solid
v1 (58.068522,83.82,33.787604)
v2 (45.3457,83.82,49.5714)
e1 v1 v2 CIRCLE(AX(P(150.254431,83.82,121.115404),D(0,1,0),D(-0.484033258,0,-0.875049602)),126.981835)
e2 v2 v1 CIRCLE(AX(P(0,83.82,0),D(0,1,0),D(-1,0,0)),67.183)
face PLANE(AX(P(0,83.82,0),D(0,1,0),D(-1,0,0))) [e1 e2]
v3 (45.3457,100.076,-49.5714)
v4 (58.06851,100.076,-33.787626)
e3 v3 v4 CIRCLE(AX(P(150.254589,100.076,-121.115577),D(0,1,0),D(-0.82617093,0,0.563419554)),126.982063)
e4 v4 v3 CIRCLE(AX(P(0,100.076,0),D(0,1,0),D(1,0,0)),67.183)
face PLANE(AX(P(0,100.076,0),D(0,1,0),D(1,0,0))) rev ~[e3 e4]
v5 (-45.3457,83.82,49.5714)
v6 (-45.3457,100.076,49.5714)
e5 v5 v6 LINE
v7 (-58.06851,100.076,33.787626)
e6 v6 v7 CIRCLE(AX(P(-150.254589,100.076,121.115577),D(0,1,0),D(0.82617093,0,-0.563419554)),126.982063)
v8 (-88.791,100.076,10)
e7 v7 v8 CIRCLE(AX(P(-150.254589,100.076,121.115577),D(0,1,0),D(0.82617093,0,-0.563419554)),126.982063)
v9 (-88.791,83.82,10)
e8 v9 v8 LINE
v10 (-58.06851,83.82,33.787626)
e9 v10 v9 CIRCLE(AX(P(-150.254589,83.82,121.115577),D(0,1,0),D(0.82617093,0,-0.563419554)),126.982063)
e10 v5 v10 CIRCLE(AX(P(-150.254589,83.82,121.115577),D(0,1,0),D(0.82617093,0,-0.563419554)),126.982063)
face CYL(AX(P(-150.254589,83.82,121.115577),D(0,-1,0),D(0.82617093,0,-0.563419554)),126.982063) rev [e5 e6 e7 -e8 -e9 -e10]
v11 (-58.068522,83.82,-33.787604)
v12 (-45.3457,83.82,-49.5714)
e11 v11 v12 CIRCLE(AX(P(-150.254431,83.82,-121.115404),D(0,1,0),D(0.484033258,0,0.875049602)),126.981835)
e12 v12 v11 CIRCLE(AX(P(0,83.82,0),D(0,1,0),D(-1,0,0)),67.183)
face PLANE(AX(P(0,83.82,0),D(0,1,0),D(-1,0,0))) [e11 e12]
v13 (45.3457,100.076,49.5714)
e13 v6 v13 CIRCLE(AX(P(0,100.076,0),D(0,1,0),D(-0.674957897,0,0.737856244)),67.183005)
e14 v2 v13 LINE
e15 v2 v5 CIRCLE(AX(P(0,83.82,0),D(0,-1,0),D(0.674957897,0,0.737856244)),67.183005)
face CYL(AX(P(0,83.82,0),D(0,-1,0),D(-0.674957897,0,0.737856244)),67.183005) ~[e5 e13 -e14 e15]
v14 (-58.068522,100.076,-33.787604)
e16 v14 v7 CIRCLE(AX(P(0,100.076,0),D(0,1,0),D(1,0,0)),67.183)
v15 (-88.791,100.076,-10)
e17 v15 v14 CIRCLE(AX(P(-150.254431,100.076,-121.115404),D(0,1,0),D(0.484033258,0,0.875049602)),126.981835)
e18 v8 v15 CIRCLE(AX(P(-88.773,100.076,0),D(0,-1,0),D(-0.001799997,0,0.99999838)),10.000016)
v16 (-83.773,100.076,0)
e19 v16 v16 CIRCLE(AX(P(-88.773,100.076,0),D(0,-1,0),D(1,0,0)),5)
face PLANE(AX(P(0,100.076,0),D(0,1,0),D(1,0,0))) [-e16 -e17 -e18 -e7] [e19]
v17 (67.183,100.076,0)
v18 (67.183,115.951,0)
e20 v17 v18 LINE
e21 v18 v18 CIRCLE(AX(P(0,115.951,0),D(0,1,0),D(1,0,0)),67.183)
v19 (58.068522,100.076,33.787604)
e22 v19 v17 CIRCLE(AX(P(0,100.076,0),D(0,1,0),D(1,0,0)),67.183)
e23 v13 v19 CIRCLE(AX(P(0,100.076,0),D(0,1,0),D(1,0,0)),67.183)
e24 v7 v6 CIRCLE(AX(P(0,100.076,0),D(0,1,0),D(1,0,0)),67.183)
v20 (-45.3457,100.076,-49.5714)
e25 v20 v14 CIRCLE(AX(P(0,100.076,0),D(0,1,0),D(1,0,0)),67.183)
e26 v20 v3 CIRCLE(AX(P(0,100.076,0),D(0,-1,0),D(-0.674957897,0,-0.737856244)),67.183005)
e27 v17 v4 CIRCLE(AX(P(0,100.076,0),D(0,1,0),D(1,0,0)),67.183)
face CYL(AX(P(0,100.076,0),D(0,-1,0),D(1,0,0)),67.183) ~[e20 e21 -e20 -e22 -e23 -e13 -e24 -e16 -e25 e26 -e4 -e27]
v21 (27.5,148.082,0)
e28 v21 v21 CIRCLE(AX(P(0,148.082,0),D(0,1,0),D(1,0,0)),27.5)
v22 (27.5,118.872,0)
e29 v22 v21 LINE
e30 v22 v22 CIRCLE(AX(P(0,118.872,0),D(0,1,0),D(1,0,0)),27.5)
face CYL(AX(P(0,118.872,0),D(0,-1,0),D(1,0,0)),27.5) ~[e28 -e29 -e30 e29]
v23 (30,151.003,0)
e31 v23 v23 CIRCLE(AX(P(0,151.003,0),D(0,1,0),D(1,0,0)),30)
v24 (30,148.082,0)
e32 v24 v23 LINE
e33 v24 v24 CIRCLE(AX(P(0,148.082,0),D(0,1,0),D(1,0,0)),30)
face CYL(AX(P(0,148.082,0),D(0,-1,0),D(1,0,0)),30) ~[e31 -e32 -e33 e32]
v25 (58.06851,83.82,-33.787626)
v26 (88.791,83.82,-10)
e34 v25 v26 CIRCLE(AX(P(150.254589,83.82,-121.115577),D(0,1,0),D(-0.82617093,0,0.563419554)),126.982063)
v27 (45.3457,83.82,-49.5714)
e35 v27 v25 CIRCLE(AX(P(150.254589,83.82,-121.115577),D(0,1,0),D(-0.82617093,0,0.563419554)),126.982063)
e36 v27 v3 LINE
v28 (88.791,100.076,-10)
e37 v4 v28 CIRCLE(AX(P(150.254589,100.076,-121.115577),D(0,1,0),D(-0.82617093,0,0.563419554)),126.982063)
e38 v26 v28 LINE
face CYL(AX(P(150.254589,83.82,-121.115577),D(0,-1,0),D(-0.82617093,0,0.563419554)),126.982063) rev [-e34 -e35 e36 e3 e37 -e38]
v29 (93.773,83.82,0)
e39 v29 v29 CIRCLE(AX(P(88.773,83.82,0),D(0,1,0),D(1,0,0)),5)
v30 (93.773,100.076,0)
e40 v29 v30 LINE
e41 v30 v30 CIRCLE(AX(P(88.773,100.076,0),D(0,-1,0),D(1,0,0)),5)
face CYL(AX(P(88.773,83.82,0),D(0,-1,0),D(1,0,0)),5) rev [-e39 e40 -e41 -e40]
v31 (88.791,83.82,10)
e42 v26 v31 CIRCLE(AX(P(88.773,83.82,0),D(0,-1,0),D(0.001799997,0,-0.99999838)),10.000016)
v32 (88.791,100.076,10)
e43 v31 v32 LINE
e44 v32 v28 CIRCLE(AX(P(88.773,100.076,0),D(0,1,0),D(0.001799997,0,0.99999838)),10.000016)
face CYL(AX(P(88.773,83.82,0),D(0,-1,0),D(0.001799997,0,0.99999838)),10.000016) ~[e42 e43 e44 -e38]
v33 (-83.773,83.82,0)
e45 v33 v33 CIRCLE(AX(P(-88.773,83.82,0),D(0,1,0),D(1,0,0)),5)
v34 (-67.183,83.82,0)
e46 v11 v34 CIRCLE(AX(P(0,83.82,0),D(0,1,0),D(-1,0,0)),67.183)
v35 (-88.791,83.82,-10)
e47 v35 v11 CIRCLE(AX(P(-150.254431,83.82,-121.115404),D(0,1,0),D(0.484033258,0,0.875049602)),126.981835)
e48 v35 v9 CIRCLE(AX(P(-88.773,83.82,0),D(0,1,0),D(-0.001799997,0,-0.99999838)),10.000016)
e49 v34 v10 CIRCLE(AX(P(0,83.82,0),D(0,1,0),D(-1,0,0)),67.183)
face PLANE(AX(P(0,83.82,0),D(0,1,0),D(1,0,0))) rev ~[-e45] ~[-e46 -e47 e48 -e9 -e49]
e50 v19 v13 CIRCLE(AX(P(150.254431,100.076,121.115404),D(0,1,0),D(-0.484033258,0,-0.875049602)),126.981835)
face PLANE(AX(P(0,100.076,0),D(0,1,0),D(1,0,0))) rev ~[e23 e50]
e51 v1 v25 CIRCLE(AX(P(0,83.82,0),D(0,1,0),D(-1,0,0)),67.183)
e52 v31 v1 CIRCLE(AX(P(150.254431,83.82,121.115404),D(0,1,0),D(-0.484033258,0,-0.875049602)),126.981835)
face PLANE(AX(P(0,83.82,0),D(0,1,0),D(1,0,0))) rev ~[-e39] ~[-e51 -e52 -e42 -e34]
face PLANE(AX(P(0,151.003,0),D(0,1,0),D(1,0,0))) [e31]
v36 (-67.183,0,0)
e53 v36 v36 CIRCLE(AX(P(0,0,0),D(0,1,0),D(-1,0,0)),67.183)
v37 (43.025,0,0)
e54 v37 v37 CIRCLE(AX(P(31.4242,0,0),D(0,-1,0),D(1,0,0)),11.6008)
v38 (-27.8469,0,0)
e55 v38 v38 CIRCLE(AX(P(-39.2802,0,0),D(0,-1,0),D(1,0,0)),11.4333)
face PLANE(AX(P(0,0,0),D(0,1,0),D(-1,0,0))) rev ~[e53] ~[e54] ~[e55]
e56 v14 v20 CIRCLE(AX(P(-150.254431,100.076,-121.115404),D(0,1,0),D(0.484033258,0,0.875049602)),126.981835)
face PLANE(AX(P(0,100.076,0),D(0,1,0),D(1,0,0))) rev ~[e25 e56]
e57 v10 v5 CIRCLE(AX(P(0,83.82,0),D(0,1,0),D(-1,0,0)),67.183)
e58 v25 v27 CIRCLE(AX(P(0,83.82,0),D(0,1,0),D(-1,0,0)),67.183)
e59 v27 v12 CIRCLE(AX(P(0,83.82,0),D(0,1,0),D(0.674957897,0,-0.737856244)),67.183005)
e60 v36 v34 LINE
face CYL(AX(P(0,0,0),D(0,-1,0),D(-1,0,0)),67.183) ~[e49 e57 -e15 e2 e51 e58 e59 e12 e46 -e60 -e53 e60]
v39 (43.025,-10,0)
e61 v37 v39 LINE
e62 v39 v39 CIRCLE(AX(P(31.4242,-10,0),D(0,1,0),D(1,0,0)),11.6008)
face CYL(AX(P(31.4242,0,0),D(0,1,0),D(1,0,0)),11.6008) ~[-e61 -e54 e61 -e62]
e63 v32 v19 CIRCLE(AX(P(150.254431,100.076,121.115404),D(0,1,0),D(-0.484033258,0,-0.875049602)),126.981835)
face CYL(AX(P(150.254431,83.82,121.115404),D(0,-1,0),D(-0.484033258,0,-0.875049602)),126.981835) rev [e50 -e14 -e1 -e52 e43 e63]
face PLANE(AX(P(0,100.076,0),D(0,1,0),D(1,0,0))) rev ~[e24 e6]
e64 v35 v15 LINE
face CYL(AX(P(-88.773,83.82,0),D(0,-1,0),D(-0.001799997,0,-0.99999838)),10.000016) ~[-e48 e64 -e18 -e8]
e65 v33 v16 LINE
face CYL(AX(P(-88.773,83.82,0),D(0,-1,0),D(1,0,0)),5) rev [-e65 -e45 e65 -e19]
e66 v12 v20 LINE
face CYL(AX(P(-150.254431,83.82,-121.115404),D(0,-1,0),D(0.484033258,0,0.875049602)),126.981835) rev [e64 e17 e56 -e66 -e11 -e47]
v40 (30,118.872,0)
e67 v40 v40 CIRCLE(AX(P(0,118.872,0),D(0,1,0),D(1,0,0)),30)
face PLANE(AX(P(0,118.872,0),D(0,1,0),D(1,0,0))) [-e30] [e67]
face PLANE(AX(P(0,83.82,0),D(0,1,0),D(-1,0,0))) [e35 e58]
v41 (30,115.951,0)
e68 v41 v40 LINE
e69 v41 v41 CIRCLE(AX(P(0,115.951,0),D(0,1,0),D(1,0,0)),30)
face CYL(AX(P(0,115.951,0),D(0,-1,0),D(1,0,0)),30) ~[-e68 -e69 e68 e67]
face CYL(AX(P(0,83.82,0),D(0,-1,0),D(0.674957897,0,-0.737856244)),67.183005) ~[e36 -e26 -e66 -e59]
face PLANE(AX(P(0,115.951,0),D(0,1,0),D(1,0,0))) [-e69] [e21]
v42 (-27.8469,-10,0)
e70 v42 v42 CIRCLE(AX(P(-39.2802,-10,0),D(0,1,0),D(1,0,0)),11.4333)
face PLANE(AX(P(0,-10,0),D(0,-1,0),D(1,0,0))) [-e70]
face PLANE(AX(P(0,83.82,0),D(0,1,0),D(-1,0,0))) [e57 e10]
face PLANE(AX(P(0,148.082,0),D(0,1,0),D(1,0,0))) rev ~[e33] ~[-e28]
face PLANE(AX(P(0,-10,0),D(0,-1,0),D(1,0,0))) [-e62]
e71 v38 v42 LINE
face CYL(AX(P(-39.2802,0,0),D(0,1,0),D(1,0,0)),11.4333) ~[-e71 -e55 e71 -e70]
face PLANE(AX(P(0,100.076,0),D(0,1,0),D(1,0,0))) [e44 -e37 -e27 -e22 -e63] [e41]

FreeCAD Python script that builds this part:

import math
import FreeCAD as App
import Part
import Sketcher
from FreeCAD import Vector
Q = App.Units.Quantity

doc = App.newDocument("Part")
body = doc.addObject("PartDesign::Body", "Body")

# Sketch on XZ plane
sketch1 = doc.addObject("Sketcher::SketchObject", "Sketch")
body.addObject(sketch1)
sketch1.AttachmentSupport = (doc.XZ_Plane, [""])
sketch1.MapMode = "FlatFace"
sketch1.addGeometry(Part.Circle(Vector(0, 0, 0), Vector(0, 0, 1), 67.183), False)
sketch1.addConstraint([
    Sketcher.Constraint("Coincident", 0, 3, -1, 1),
    Sketcher.Constraint("Diameter", 0, Q("5.29 in")),
])
pad1 = doc.addObject("PartDesign::Pad", "Pad")
body.addObject(pad1)
pad1.Profile = sketch1
pad1.Length = Q("3.3 in")
pad1.Reversed = True

# Sketch on XZ plane
sketch2 = doc.addObject("Sketcher::SketchObject", "Sketch001")
body.addObject(sketch2)
sketch2.AttachmentSupport = (doc.XZ_Plane, [""])
sketch2.MapMode = "FlatFace"
sketch2.AttachmentOffset = App.Placement(Vector(0, 0, -3.3 * 25.4), App.Rotation())
sketch2.addGeometry([
    Part.ArcOfCircle(Part.Circle(Vector(-150.2545, -121.1155, 0), Vector(0, 0, 1), 126.981952), math.radians(34.292608), math.radians(61.05084)),  # 0
    Part.ArcOfCircle(Part.Circle(Vector(-88.773, 0, 0), Vector(0, 0, 1), 10.000016), math.radians(90.103132), math.radians(269.896868)),  # 1
    Part.ArcOfCircle(Part.Circle(Vector(-150.2545, 121.1155, 0), Vector(0, 0, 1), 126.981946), math.radians(-61.05084), math.radians(-34.292608)),  # 2
    Part.ArcOfCircle(Part.Circle(Vector(0, 0, 0), Vector(0, 0, 1), 67.183005), math.radians(47.549119), math.radians(132.450881)),  # 3
    Part.ArcOfCircle(Part.Circle(Vector(150.2545, 121.1155, 0), Vector(0, 0, 1), 126.981952), math.radians(-145.707392), math.radians(-118.94916)),  # 4
    Part.ArcOfCircle(Part.Circle(Vector(88.773, 0, 0), Vector(0, 0, 1), 10.000016), math.radians(-89.896868), math.radians(89.896868)),  # 5
    Part.ArcOfCircle(Part.Circle(Vector(150.2545, -121.1155, 0), Vector(0, 0, 1), 126.981946), math.radians(118.94916), math.radians(145.707392)),  # 6
    Part.ArcOfCircle(Part.Circle(Vector(0, 0, 0), Vector(0, 0, 1), 67.183005), math.radians(-132.450881), math.radians(-47.549119)),  # 7
    Part.Circle(Vector(-88.773, 0, 0), Vector(0, 0, 1), 5),  # 8
    Part.Circle(Vector(88.773, 0, 0), Vector(0, 0, 1), 5),  # 9
], False)
sketch2.addConstraint([
    Sketcher.Constraint("Coincident", 0, 2, 1, 2),
    Sketcher.Constraint("Coincident", 1, 1, 2, 1),
    Sketcher.Constraint("Coincident", 2, 2, 3, 2),
    Sketcher.Constraint("Coincident", 3, 1, 4, 1),
    Sketcher.Constraint("Coincident", 4, 2, 5, 2),
    Sketcher.Constraint("Coincident", 5, 1, 6, 1),
    Sketcher.Constraint("Coincident", 6, 2, 7, 2),
    Sketcher.Constraint("Coincident", 7, 1, 0, 1),
    Sketcher.Constraint("Coincident", 3, 3, -1, 1),
    Sketcher.Constraint("Coincident", 7, 3, -1, 1),
    Sketcher.Constraint("Coincident", 8, 3, 1, 3),
    Sketcher.Constraint("Coincident", 9, 3, 5, 3),
    Sketcher.Constraint("Equal", 0, 2),
    Sketcher.Constraint("Equal", 2, 4),
    Sketcher.Constraint("Equal", 1, 5),
    Sketcher.Constraint("Equal", 4, 6),
    Sketcher.Constraint("Equal", 3, 7),
    Sketcher.Constraint("Equal", 8, 9),
    Sketcher.Constraint("Symmetric", 0, 3, 4, 3, -1, 1),
    Sketcher.Constraint("Symmetric", 1, 3, 5, 3, -1, 1),
    Sketcher.Constraint("Symmetric", 2, 3, 6, 3, -1, 1),
    Sketcher.Constraint("Symmetric", 2, 3, 4, 3, -2),
    Sketcher.Constraint("PointOnObject", 1, 3, -1),
    Sketcher.Constraint("Diameter", 8, Q("0.3937 in")),
    Sketcher.Constraint("Radius", 1, Q("0.3937 in")),
    Sketcher.Constraint("DistanceX", 1, 3, -1, 1, Q("3.495 in")),
    Sketcher.Constraint("Radius", 3, Q("2.645 in")),
    Sketcher.Constraint("Radius", 0, Q("4.9993 in")),
    Sketcher.Constraint("DistanceX", 0, 2, -1, 1, Q("3.4957 in")),
    Sketcher.Constraint("DistanceX", 0, 3, -1, 1, 150.2545),
])
pad2 = doc.addObject("PartDesign::Pad", "Pad001")
body.addObject(pad2)
pad2.Profile = sketch2
pad2.Length = Q("0.64 in")
pad2.Reversed = True

# Sketch on XZ plane
sketch3 = doc.addObject("Sketcher::SketchObject", "Sketch002")
body.addObject(sketch3)
sketch3.AttachmentSupport = (doc.XZ_Plane, [""])
sketch3.MapMode = "FlatFace"
sketch3.addGeometry([
    Part.Circle(Vector(31.4242, 0, 0), Vector(0, 0, 1), 11.6008),
    Part.Circle(Vector(-39.2802, 0, 0), Vector(0, 0, 1), 11.4333),
], False)
sketch3.addConstraint([
    Sketcher.Constraint("PointOnObject", 0, 3, -1),
    Sketcher.Constraint("PointOnObject", 1, 3, -1),
    Sketcher.Constraint("Diameter", 0, 23.2016),
    Sketcher.Constraint("Diameter", 1, 22.8666),
    Sketcher.Constraint("DistanceX", -1, 1, 0, 3, 31.4242),
    Sketcher.Constraint("DistanceX", 1, 3, -1, 1, 39.2802),
])
pad3 = doc.addObject("PartDesign::Pad", "Pad002")
body.addObject(pad3)
pad3.Profile = sketch3
pad3.Length = Q("0.3937008 in")

# Sketch on XZ plane
sketch4 = doc.addObject("Sketcher::SketchObject", "Sketch003")
body.addObject(sketch4)
sketch4.AttachmentSupport = (doc.XZ_Plane, [""])
sketch4.MapMode = "FlatFace"
sketch4.AttachmentOffset = App.Placement(Vector(0, 0, -3.94 * 25.4), App.Rotation())
sketch4.addGeometry(Part.Circle(Vector(0, 0, 0), Vector(0, 0, 1), 67.183), False)
sketch4.addConstraint([
    Sketcher.Constraint("Coincident", 0, 3, -1, 1),
    Sketcher.Constraint("Diameter", 0, Q("5.29 in")),
])
pad4 = doc.addObject("PartDesign::Pad", "Pad003")
body.addObject(pad4)
pad4.Profile = sketch4
pad4.Length = Q("0.625 in")
pad4.Reversed = True

# Sketch on XZ plane
sketch5 = doc.addObject("Sketcher::SketchObject", "Sketch004")
body.addObject(sketch5)
sketch5.AttachmentSupport = (doc.XZ_Plane, [""])
sketch5.MapMode = "FlatFace"
sketch5.AttachmentOffset = App.Placement(Vector(0, 0, -4.565 * 25.4), App.Rotation())
sketch5.addGeometry(Part.Circle(Vector(0, 0, 0), Vector(0, 0, 1), 30), False)
sketch5.addConstraint([
    Sketcher.Constraint("Coincident", 0, 3, -1, 1),
    Sketcher.Constraint("Diameter", 0, Q("2.3622 in")),
])
pad5 = doc.addObject("PartDesign::Pad", "Pad004")
body.addObject(pad5)
pad5.Profile = sketch5
pad5.Length = Q("0.115 in")
pad5.Reversed = True

# Sketch on XZ plane
sketch6 = doc.addObject("Sketcher::SketchObject", "Sketch005")
body.addObject(sketch6)
sketch6.AttachmentSupport = (doc.XZ_Plane, [""])
sketch6.MapMode = "FlatFace"
sketch6.AttachmentOffset = App.Placement(Vector(0, 0, -4.68 * 25.4), App.Rotation())
sketch6.addGeometry(Part.Circle(Vector(0, 0, 0), Vector(0, 0, 1), 27.5), False)
sketch6.addConstraint([
    Sketcher.Constraint("Coincident", 0, 3, -1, 1),
    Sketcher.Constraint("Diameter", 0, 55.0),
])
pad6 = doc.addObject("PartDesign::Pad", "Pad005")
body.addObject(pad6)
pad6.Profile = sketch6
pad6.Length = Q("1.15 in")
pad6.Reversed = True

# Sketch on XZ plane
sketch7 = doc.addObject("Sketcher::SketchObject", "Sketch006")
body.addObject(sketch7)
sketch7.AttachmentSupport = (doc.XZ_Plane, [""])
sketch7.MapMode = "FlatFace"
sketch7.AttachmentOffset = App.Placement(Vector(0, 0, -5.83 * 25.4), App.Rotation())
sketch7.addGeometry(Part.Circle(Vector(0, 0, 0), Vector(0, 0, 1), 30), False)
sketch7.addConstraint([
    Sketcher.Constraint("Coincident", 0, 3, -1, 1),
    Sketcher.Constraint("Diameter", 0, Q("2.3622 in")),
])
pad7 = doc.addObject("PartDesign::Pad", "Pad006")
body.addObject(pad7)
pad7.Profile = sketch7
pad7.Length = Q("0.115 in")
pad7.Reversed = True

doc.recompute()
